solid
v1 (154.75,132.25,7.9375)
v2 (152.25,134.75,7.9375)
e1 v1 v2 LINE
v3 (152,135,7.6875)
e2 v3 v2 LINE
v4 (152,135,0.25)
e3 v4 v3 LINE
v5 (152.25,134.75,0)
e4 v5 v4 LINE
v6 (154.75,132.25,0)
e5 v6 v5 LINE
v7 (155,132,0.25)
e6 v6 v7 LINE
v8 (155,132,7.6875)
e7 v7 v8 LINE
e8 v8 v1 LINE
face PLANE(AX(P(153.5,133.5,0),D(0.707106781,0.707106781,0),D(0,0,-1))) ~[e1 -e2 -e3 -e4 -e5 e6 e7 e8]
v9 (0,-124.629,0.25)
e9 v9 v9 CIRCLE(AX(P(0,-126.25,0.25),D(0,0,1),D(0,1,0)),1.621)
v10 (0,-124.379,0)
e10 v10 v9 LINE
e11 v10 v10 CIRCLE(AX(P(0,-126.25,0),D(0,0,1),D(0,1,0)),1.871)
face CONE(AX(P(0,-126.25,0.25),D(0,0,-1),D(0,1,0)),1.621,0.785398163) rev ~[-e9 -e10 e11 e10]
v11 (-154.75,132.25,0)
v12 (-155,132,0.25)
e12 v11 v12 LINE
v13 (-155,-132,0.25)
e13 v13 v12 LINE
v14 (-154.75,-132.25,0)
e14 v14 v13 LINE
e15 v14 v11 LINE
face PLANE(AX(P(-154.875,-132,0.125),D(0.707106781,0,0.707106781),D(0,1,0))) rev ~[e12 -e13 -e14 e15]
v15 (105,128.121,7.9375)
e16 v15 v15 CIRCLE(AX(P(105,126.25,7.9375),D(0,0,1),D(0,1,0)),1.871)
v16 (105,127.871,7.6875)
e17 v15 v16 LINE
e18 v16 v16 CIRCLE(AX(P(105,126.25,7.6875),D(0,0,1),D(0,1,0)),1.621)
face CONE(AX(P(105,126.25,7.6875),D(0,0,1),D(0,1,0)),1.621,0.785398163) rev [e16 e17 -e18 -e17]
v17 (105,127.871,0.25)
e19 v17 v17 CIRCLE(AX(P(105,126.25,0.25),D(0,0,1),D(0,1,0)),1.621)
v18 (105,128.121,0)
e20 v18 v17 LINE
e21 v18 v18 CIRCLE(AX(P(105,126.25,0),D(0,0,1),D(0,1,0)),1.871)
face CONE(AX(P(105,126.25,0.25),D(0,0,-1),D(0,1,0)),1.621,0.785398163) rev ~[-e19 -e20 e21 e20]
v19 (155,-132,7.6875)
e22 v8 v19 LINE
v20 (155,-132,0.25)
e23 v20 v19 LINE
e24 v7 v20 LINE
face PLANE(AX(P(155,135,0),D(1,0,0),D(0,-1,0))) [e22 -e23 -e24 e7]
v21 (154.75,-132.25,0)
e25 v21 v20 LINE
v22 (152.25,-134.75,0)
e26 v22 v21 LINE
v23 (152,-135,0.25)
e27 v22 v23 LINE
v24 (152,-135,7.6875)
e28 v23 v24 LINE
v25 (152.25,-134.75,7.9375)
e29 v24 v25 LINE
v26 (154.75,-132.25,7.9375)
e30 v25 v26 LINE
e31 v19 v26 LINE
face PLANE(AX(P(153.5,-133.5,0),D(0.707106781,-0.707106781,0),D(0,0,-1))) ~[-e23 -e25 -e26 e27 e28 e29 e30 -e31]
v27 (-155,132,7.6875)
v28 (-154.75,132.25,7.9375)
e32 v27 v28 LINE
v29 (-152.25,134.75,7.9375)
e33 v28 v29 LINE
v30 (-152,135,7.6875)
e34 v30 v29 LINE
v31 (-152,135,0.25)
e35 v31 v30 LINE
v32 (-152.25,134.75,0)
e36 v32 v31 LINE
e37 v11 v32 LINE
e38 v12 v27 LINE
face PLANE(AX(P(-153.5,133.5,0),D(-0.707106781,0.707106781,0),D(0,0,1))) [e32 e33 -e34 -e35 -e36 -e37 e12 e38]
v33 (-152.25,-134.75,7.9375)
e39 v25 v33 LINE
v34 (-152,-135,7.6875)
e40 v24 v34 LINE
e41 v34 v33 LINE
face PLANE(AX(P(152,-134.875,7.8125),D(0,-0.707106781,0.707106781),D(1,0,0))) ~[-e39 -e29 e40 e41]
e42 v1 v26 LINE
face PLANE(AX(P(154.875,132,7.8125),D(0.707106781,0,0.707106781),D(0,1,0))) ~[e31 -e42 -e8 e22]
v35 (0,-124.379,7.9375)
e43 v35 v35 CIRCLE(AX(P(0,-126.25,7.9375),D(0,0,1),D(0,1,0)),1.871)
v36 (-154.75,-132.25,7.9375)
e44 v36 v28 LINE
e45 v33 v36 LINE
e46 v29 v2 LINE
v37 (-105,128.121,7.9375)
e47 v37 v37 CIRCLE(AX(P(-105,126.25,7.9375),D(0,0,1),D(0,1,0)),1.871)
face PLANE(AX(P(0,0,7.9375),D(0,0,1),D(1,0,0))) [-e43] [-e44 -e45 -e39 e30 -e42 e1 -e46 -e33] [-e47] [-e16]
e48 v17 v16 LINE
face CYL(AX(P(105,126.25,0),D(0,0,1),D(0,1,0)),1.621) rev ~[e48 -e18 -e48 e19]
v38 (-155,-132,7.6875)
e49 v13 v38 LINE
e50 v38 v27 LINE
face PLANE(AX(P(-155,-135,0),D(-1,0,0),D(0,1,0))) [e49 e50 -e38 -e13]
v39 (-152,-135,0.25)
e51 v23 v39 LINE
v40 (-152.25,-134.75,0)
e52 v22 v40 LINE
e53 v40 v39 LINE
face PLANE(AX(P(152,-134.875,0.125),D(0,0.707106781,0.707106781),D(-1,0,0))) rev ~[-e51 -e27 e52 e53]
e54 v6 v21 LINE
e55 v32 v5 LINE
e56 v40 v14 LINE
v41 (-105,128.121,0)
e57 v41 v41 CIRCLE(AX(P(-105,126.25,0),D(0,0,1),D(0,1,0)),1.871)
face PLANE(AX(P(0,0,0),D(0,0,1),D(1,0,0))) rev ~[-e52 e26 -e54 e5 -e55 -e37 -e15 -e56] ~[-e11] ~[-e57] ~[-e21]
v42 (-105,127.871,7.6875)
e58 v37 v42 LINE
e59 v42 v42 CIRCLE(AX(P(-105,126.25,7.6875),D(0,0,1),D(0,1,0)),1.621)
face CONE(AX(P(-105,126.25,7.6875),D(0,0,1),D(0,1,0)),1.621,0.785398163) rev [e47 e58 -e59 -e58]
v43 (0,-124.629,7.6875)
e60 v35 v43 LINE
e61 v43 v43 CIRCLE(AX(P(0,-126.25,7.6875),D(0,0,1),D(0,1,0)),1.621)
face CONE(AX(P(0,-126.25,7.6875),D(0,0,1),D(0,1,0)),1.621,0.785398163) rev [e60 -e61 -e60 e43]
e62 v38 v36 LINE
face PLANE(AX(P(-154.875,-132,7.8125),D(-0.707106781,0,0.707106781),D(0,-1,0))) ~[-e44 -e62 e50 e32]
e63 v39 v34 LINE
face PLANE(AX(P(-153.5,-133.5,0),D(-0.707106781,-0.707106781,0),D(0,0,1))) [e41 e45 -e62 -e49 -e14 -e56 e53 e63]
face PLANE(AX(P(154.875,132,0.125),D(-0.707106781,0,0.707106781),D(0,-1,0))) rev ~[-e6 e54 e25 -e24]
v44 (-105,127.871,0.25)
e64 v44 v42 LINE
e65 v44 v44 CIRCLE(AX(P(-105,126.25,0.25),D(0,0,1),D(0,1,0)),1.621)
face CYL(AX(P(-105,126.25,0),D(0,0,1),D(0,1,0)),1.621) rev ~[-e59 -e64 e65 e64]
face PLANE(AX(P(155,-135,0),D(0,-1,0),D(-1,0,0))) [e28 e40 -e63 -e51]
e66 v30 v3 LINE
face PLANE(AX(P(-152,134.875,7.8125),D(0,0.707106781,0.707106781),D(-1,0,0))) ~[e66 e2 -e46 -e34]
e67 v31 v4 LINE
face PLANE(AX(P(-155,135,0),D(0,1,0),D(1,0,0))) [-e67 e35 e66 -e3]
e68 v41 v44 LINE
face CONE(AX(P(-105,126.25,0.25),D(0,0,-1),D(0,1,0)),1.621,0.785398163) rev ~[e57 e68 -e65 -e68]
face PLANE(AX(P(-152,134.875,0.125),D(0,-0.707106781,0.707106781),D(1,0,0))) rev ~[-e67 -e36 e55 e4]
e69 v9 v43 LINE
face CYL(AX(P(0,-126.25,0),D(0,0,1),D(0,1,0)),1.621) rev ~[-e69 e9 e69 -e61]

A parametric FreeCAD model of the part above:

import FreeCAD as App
import Part
import Sketcher
from FreeCAD import Vector
Q = App.Units.Quantity


def edges_at(feature, points):
    """Names of the edges that pass closest to the given points."""
    edges = feature.Shape.Edges
    near = lambda p: min(range(len(edges)), key=lambda i: edges[i].distToShape(Part.Vertex(*p))[0])
    return sorted({f"Edge{near(p) + 1}" for p in points})


def add_polygon(sketch, points):
    """Adds a closed chain of lines whose ends are joined by coincident constraints."""
    first, n = sketch.GeometryCount, len(points)
    for a, b in zip(points, points[1:] + points[:1]):
        sketch.addGeometry(Part.LineSegment(App.Vector(*a, 0), App.Vector(*b, 0)), False)
    for i in range(n):
        sketch.addConstraint(Sketcher.Constraint("Coincident", first + i, 2, first + (i + 1) % n, 1))

doc = App.newDocument("Part")
params = doc.addObject("Spreadsheet::Sheet", "Params")
for row, (alias, value) in enumerate([
    ("sketch1_width", "310 mm"),
    ("sketch1_height", "270 mm"),
    ("pad1_length", "7.9375 mm"),
    ("hole_diameter", "3.242 mm"),
    ("chamfer_size", "0.25 mm"),
    ("chamfer2_size", "3 mm"),
    ("chamfer3_size", "0.25 mm"),
], start=1):
    params.set(f"A{row}", alias)
    params.set(f"B{row}", "=" + value)
    params.setAlias(f"B{row}", alias)

body = doc.addObject("PartDesign::Body", "Body")

# Sketch on XY plane
sketch1 = body.newObject("Sketcher::SketchObject", "Sketch")
sketch1.AttachmentSupport = (doc.getObject("XY_Plane"), [""])
sketch1.MapMode = "FlatFace"
add_polygon(sketch1, [(-155, -135), (155, -135), (155, 135), (-155, 135)])  # lines 0-3
sketch1.addConstraint([
    Sketcher.Constraint("Horizontal", 0),
    Sketcher.Constraint("Vertical", 1),
    Sketcher.Constraint("Horizontal", 2),
    Sketcher.Constraint("Vertical", 3),
    Sketcher.Constraint("Symmetric", 0, 2, 2, 2, -1, 1),
    Sketcher.Constraint("DistanceX", 0, 1, 0, 2, Q("310 mm")),
    Sketcher.Constraint("DistanceY", 1, 1, 1, 2, Q("270 mm")),
])
sketch1.setExpression("Constraints[9]", "Params.sketch1_width")
sketch1.setExpression("Constraints[10]", "Params.sketch1_height")
pad1 = body.newObject("PartDesign::Pad", "Pad")
pad1.Profile = sketch1
pad1.setExpression("Length", "Params.pad1_length")

# Sketch on XY plane
sketch2 = body.newObject("Sketcher::SketchObject", "Sketch001")
sketch2.AttachmentSupport = (doc.getObject("XY_Plane"), [""])
sketch2.MapMode = "FlatFace"
sketch2.addGeometry([
    Part.Circle(Vector(0, -126.2, 0), Vector(0, 0, 1), 1.6),
    Part.Circle(Vector(105, 126.2, 0), Vector(0, 0, 1), 1.6),
    Part.Circle(Vector(-105, 126.2, 0), Vector(0, 0, 1), 1.6),
], False)
sketch2.addConstraint([
    Sketcher.Constraint("Equal", 0, 1),
    Sketcher.Constraint("Equal", 1, 2),
    Sketcher.Constraint("Symmetric", 1, 3, 2, 3, -2),
    Sketcher.Constraint("PointOnObject", 0, 3, -2),
    Sketcher.Constraint("Diameter", 0, Q("3.242 mm")),
    Sketcher.Constraint("DistanceX", -1, 1, 1, 3, Q("105 mm")),
    Sketcher.Constraint("DistanceY", 0, 3, 1, 3, Q("252.5 mm")),
    Sketcher.Constraint("DistanceY", 0, 3, -1, 1, Q("126.25 mm")),
])
doc.recompute()
hole = body.newObject("PartDesign::Hole", "Hole")
hole.Profile = sketch2
hole.ThreadType = "None"
hole.setExpression("Diameter", "Params.hole_diameter")
hole.DepthType = "ThroughAll"
hole.Reversed = True
doc.recompute()

chamfer = body.newObject("PartDesign::Chamfer", "Chamfer")
chamfer.Base = (hole, edges_at(hole, [
    (0, -127.871, 0),
    (-105, 124.629, 0),
    (105, 124.629, 0),
    (0, -127.871, 7.938),
    (-105, 124.629, 7.938),
    (105, 124.629, 7.938),
]))
chamfer.setExpression("Size", "Params.chamfer_size")
doc.recompute()

chamfer2 = body.newObject("PartDesign::Chamfer", "Chamfer001")
chamfer2.Base = (chamfer, edges_at(chamfer, [
    (-155, 135, 3.969),
    (155, 135, 3.969),
    (155, -135, 3.969),
    (-155, -135, 3.969),
]))
chamfer2.setExpression("Size", "Params.chamfer2_size")
doc.recompute()

chamfer3 = body.newObject("PartDesign::Chamfer", "Chamfer002")
chamfer3.Base = (chamfer2, edges_at(chamfer2, [
    (-155, 0, 7.938),
    (0, 135, 7.938),
    (155, 0, 7.938),
    (0, -135, 7.938),
    (-155, 0, 0),
    (0, -135, 0),
    (155, 0, 0),
    (0, 135, 0),
]))
chamfer3.setExpression("Size", "Params.chamfer3_size")

doc.recompute()
